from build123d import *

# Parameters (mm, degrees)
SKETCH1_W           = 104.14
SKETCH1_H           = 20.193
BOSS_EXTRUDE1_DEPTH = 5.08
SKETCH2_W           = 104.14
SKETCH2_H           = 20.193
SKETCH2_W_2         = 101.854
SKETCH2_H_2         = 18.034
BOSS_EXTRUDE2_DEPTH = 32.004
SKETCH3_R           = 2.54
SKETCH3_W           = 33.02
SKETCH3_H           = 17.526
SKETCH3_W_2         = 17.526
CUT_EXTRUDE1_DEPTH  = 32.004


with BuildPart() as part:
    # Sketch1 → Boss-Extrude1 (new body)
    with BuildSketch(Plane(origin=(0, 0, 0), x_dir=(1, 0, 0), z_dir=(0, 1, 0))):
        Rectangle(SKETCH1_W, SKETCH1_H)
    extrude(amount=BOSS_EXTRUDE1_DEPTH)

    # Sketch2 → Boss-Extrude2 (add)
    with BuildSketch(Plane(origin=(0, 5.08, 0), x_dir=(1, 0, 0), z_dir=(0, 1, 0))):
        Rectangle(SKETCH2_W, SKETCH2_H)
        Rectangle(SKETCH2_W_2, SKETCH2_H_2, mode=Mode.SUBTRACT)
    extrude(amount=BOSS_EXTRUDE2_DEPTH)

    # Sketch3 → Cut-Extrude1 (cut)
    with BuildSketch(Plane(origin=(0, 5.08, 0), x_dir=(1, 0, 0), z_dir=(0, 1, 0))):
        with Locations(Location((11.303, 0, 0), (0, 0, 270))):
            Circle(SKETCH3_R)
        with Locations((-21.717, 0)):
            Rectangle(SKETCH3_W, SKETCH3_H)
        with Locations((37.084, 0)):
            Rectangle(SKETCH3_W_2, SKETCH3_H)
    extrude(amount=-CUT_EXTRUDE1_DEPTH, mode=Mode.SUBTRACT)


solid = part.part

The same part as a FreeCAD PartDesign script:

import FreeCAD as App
import Part
import Sketcher

V = App.Vector
Q = App.Units.Quantity


def add_polygon(sketch, points):
    """Adds a closed chain of lines whose ends are joined by coincident constraints."""
    first, n = sketch.GeometryCount, len(points)
    for a, b in zip(points, points[1:] + points[:1]):
        sketch.addGeometry(Part.LineSegment(App.Vector(*a, 0), App.Vector(*b, 0)), False)
    for i in range(n):
        sketch.addConstraint(Sketcher.Constraint("Coincident", first + i, 2, first + (i + 1) % n, 1))

doc = App.newDocument("Part")
body = doc.addObject("PartDesign::Body", "Body")

sketch1 = doc.addObject("Sketcher::SketchObject", "Sketch")
body.addObject(sketch1)
sketch1.AttachmentSupport = (doc.XZ_Plane, [""])
sketch1.MapMode = "FlatFace"
add_polygon(sketch1, [(-52, -10), (-52, 10), (52, 10), (52, -10)])
sketch1.addConstraint([
    Sketcher.Constraint("Vertical", 0),
    Sketcher.Constraint("Horizontal", 1),
    Sketcher.Constraint("Vertical", 2),
    Sketcher.Constraint("Horizontal", 3),
    Sketcher.Constraint("Symmetric", 0, 2, 2, 2, -1, 1),
    Sketcher.Constraint("DistanceX", 1, 1, 1, 2, Q("4.1 in")),
    Sketcher.Constraint("DistanceY", 0, 1, 0, 2, Q("0.795 in")),
])
pad1 = doc.addObject("PartDesign::Pad", "Pad")
body.addObject(pad1)
pad1.Profile = sketch1
pad1.Length = Q("0.2 in")
pad1.Reversed = True

sketch2 = doc.addObject("Sketcher::SketchObject", "Sketch001")
body.addObject(sketch2)
sketch2.AttachmentSupport = (doc.XZ_Plane, [""])
sketch2.MapMode = "FlatFace"
sketch2.AttachmentOffset = App.Placement(V(0, 0, -0.2 * 25.4), App.Rotation())
add_polygon(sketch2, [(-52, -10), (-52, 10), (52, 10), (52, -10)])
add_polygon(sketch2, [(51, 9), (-51, 9), (-51, -9), (51, -9)])
sketch2.addConstraint([
    Sketcher.Constraint("Vertical", 0),
    Sketcher.Constraint("Horizontal", 1),
    Sketcher.Constraint("Vertical", 2),
    Sketcher.Constraint("Horizontal", 3),
    Sketcher.Constraint("Horizontal", 4),
    Sketcher.Constraint("Vertical", 5),
    Sketcher.Constraint("Horizontal", 6),
    Sketcher.Constraint("Vertical", 7),
    Sketcher.Constraint("Symmetric", 0, 2, 2, 2, -1, 1),
    Sketcher.Constraint("Symmetric", 4, 2, 6, 2, -1, 1),
    Sketcher.Constraint("DistanceX", 1, 1, 1, 2, Q("4.1 in")),
    Sketcher.Constraint("DistanceX", 4, 2, 4, 1, Q("4.01 in")),
    Sketcher.Constraint("DistanceY", 5, 2, 5, 1, Q("0.71 in")),
    Sketcher.Constraint("DistanceY", 0, 1, 0, 2, Q("0.795 in")),
])
pad2 = doc.addObject("PartDesign::Pad", "Pad001")
body.addObject(pad2)
pad2.Profile = sketch2
pad2.Length = Q("1.26 in")
pad2.Reversed = True

sketch3 = doc.addObject("Sketcher::SketchObject", "Sketch002")
body.addObject(sketch3)
sketch3.AttachmentSupport = (doc.XZ_Plane, [""])
sketch3.MapMode = "FlatFace"
sketch3.AttachmentOffset = App.Placement(V(0, 0, -0.2 * 25.4), App.Rotation())
sketch3.addGeometry(Part.Circle(V(11.3, 0, 0), V(0, 0, 1), 2.5), False)
add_polygon(sketch3, [(-38.2, -8.8), (-38.2, 8.8), (-5.2, 8.8), (-5.2, -8.8)])
add_polygon(sketch3, [(28.3, -8.8), (28.3, 8.8), (45.8, 8.8), (45.8, -8.8)])
sketch3.addConstraint([
    Sketcher.Constraint("Vertical", 1),
    Sketcher.Constraint("Horizontal", 2),
    Sketcher.Constraint("Vertical", 3),
    Sketcher.Constraint("Horizontal", 4),
    Sketcher.Constraint("Vertical", 5),
    Sketcher.Constraint("Horizontal", 6),
    Sketcher.Constraint("Vertical", 7),
    Sketcher.Constraint("Horizontal", 8),
    Sketcher.Constraint("PointOnObject", 0, 3, -1),
    Sketcher.Constraint("Horizontal", 2, 2, 5, 2),
    Sketcher.Constraint("Horizontal", 4, 2, 7, 2),
    Sketcher.Constraint("Equal", 8, 1),
    Sketcher.Constraint("Diameter", 0, Q("0.2 in")),
    Sketcher.Constraint("DistanceX", 2, 1, 2, 2, Q("1.3 in")),
    Sketcher.Constraint("DistanceX", 6, 1, 6, 2, Q("0.69 in")),
    Sketcher.Constraint("DistanceX", 1, 2, 0, 3, Q("1.95 in")),
    Sketcher.Constraint("DistanceX", 0, 3, 5, 2, Q("0.67 in")),
    Sketcher.Constraint("DistanceX", -1, 1, 0, 3, Q("0.445 in")),
    Sketcher.Constraint("DistanceY", -1, 1, 1, 2, Q("0.345 in")),
])
pocket1 = doc.addObject("PartDesign::Pocket", "Pocket")
body.addObject(pocket1)
pocket1.Profile = sketch3
pocket1.Length = Q("1.26 in")
pocket1.Reversed = True

doc.recompute()
